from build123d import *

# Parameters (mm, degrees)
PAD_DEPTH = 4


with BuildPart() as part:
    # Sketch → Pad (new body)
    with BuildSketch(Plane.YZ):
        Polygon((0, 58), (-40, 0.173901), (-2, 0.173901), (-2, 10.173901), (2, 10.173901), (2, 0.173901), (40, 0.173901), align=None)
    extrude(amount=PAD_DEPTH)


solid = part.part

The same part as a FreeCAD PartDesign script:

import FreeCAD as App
import Part
import Sketcher
Q = App.Units.Quantity

doc = App.newDocument("Part")
params = doc.addObject("Spreadsheet::Sheet", "Params")
for row, (alias, value) in enumerate([
    ("sketch1_width", "38 mm"),
    ("sketch1_width2", "4 mm"),
    ("sketch1_height", "10 mm"),
    ("pad1_length", "4 mm"),
], start=1):
    params.set(f"A{row}", alias)
    params.set(f"B{row}", "=" + value)
    params.setAlias(f"B{row}", alias)

body = doc.addObject("PartDesign::Body", "Body")

sketch1 = body.newObject("Sketcher::SketchObject", "Sketch")
sketch1.AttachmentSupport = (doc.getObject("YZ_Plane"), [""])
sketch1.MapMode = "FlatFace"
sketch1.addGeometry([
    Part.LineSegment(App.Vector(0, 58, 0), App.Vector(-40, 0.2, 0)),
    Part.LineSegment(App.Vector(-40, 0.2, 0), App.Vector(-2, 0.2, 0)),
    Part.LineSegment(App.Vector(-2, 0.2, 0), App.Vector(-2, 10.2, 0)),
    Part.LineSegment(App.Vector(-2, 10.2, 0), App.Vector(2, 10.2, 0)),
    Part.LineSegment(App.Vector(2, 10.2, 0), App.Vector(2, 0.2, 0)),
    Part.LineSegment(App.Vector(2, 0.2, 0), App.Vector(40, 0.2, 0)),
    Part.LineSegment(App.Vector(40, 0.2, 0), App.Vector(0, 58, 0)),
], False)
sketch1.addConstraint([
    Sketcher.Constraint("Coincident", 0, 2, 1, 1),
    Sketcher.Constraint("Coincident", 1, 2, 2, 1),
    Sketcher.Constraint("Coincident", 2, 2, 3, 1),
    Sketcher.Constraint("Coincident", 3, 2, 4, 1),
    Sketcher.Constraint("Coincident", 4, 2, 5, 1),
    Sketcher.Constraint("Coincident", 5, 2, 6, 1),
    Sketcher.Constraint("Coincident", 6, 2, 0, 1),
    Sketcher.Constraint("Horizontal", 1),
    Sketcher.Constraint("Vertical", 2),
    Sketcher.Constraint("Horizontal", 3),
    Sketcher.Constraint("Vertical", 4),
    Sketcher.Constraint("Horizontal", 5),
    Sketcher.Constraint("Symmetric", 1, 2, 4, 2, -2),
    Sketcher.Constraint("PointOnObject", 6, 2, -2),
    Sketcher.Constraint("Equal", 1, 5),
    Sketcher.Constraint("DistanceX", 1, 1, 1, 2, Q("38 mm")),
    Sketcher.Constraint("DistanceX", 3, 1, 3, 2, Q("4 mm")),
    Sketcher.Constraint("DistanceY", 2, 1, 2, 2, Q("10 mm")),
    Sketcher.Constraint("DistanceY", -1, 1, 6, 2, Q("58 mm")),
    Sketcher.Constraint("DistanceY", -1, 1, 0, 2, Q("0.173901 mm")),
])
sketch1.setExpression("Constraints[15]", "Params.sketch1_width")
sketch1.setExpression("Constraints[16]", "Params.sketch1_width2")
sketch1.setExpression("Constraints[17]", "Params.sketch1_height")
pad1 = body.newObject("PartDesign::Pad", "Pad")
pad1.Profile = sketch1
pad1.setExpression("Length", "Params.pad1_length")

doc.recompute()
